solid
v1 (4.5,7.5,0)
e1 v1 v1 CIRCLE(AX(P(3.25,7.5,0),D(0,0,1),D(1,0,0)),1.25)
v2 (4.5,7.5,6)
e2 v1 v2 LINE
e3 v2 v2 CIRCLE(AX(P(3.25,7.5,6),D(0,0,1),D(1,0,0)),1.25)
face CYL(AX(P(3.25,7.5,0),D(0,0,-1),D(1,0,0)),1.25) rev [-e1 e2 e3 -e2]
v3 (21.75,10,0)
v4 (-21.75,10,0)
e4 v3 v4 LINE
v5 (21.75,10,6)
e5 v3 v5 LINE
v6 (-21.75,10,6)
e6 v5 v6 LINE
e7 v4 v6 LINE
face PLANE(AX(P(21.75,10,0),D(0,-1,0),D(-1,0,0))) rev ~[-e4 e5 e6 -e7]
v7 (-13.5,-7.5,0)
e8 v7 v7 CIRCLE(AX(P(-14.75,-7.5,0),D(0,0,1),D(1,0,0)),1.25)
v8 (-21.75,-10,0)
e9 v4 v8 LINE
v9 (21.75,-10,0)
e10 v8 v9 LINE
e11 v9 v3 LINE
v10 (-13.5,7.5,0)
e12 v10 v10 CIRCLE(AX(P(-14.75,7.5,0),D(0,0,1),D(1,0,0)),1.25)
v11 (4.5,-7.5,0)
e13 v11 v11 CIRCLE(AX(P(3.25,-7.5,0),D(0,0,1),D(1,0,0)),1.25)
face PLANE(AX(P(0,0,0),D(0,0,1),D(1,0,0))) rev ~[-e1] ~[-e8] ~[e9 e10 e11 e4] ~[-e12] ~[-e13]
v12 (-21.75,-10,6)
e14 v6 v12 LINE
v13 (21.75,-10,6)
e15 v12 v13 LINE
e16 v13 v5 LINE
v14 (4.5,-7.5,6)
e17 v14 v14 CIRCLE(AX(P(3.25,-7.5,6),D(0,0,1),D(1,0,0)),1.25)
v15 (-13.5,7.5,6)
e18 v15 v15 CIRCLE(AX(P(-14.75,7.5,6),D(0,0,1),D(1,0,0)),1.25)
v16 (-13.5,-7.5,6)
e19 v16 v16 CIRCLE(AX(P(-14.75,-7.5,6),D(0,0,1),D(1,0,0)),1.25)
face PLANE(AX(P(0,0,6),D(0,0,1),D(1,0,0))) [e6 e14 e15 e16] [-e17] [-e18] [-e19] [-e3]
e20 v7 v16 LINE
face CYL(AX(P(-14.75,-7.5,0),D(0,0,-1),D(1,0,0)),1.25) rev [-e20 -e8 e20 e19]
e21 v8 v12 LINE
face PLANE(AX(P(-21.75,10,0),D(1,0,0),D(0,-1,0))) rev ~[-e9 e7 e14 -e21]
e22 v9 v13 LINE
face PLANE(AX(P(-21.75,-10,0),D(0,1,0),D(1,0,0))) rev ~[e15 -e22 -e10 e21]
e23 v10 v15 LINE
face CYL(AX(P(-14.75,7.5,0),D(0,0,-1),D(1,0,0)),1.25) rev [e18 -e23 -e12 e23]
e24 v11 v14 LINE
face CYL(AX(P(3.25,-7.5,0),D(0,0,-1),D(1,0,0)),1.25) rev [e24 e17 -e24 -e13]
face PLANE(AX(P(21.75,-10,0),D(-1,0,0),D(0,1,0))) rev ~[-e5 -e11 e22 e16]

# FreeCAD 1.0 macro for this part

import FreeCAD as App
import Part
import Sketcher

doc = App.newDocument("Part")
params = doc.addObject("Spreadsheet::Sheet", "Params")
for row, (alias, value) in enumerate([
    ("sketch1_diameter", "2.5 mm"),
    ("sketch1_height", "20 mm"),
    ("sketch1_width", "43.5 mm"),
    ("pad1_length", "6 mm"),
], start=1):
    params.set(f"A{row}", alias)
    params.set(f"B{row}", "=" + value)
    params.setAlias(f"B{row}", alias)

body = doc.addObject("PartDesign::Body", "Body")

# Sketch on XY plane
sketch1 = body.newObject("Sketcher::SketchObject", "Sketch")
sketch1.AttachmentSupport = (doc.getObject("XY_Plane"), [""])
sketch1.MapMode = "FlatFace"
sketch1.addGeometry([
    Part.LineSegment(App.Vector(-21.8, 10, 0), App.Vector(-21.8, -10, 0)),  # 0
    Part.LineSegment(App.Vector(-21.8, -10, 0), App.Vector(21.8, -10, 0)),  # 1
    Part.LineSegment(App.Vector(21.8, -10, 0), App.Vector(21.8, 10, 0)),  # 2
    Part.LineSegment(App.Vector(21.8, 10, 0), App.Vector(-21.8, 10, 0)),  # 3
    Part.Circle(App.Vector(-14.8, -7.5, 0), App.Vector(0, 0, 1), 1.2),  # 4
    Part.Circle(App.Vector(3.2, -7.5, 0), App.Vector(0, 0, 1), 1.2),  # 5
    Part.Circle(App.Vector(-14.8, 7.5, 0), App.Vector(0, 0, 1), 1.2),  # 6
    Part.Circle(App.Vector(3.2, 7.5, 0), App.Vector(0, 0, 1), 1.2),  # 7
], False)
sketch1.addConstraint([
    Sketcher.Constraint("Coincident", 0, 2, 1, 1),
    Sketcher.Constraint("Coincident", 1, 2, 2, 1),
    Sketcher.Constraint("Coincident", 2, 2, 3, 1),
    Sketcher.Constraint("Coincident", 3, 2, 0, 1),
    Sketcher.Constraint("Vertical", 0),
    Sketcher.Constraint("Horizontal", 1),
    Sketcher.Constraint("Vertical", 2),
    Sketcher.Constraint("Horizontal", 3),
    Sketcher.Constraint("Equal", 4, 5),
    Sketcher.Constraint("Equal", 5, 6),
    Sketcher.Constraint("Equal", 6, 7),
    Sketcher.Constraint("Symmetric", 0, 2, 2, 2, -1, 1),
    Sketcher.Constraint("Symmetric", 4, 3, 6, 3, -1),
    Sketcher.Constraint("Symmetric", 5, 3, 7, 3, -1),
    Sketcher.Constraint("Horizontal", 4, 3, 5, 3),
    Sketcher.Constraint("Diameter", 4, 2.5),
    Sketcher.Constraint("DistanceY", 0, 2, 0, 1, 20.0),
    Sketcher.Constraint("DistanceX", 1, 1, 1, 2, 43.5),
    Sketcher.Constraint("DistanceX", 4, 3, 5, 3, 18.0),
    Sketcher.Constraint("DistanceY", 4, 3, 6, 3, 15.0),
    Sketcher.Constraint("DistanceX", 0, 2, 4, 3, 7.0),
])
sketch1.setExpression("Constraints[15]", "Params.sketch1_diameter")
sketch1.setExpression("Constraints[16]", "Params.sketch1_height")
sketch1.setExpression("Constraints[17]", "Params.sketch1_width")
pad1 = body.newObject("PartDesign::Pad", "Pad")
pad1.Profile = sketch1
pad1.setExpression("Length", "Params.pad1_length")

doc.recompute()
